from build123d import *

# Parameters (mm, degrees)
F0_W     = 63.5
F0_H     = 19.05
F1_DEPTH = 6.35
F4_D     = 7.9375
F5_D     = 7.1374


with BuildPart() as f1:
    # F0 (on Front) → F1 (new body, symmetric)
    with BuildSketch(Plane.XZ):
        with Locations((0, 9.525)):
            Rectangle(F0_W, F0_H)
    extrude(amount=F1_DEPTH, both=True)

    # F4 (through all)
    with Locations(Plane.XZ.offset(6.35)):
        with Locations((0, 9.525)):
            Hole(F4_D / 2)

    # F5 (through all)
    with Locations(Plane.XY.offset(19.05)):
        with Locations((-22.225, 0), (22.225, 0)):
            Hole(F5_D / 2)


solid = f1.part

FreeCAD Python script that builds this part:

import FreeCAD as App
import Part
import Sketcher

V = App.Vector
Q = App.Units.Quantity

doc = App.newDocument("Part")
body = doc.addObject("PartDesign::Body", "Body")

sketch1 = body.newObject("Sketcher::SketchObject", "Sketch")
sketch1.AttachmentSupport = (doc.getObject("XZ_Plane"), [""])
sketch1.MapMode = "FlatFace"
sketch1.addGeometry([
    Part.LineSegment(V(-32, 19, 0), V(-32, 0, 0)),
    Part.LineSegment(V(-32, 0, 0), V(32, 0, 0)),
    Part.LineSegment(V(32, 0, 0), V(32, 19, 0)),
    Part.LineSegment(V(32, 19, 0), V(-32, 19, 0)),
], False)
sketch1.addConstraint([
    Sketcher.Constraint("Coincident", 0, 2, 1, 1),
    Sketcher.Constraint("Coincident", 1, 2, 2, 1),
    Sketcher.Constraint("Coincident", 2, 2, 3, 1),
    Sketcher.Constraint("Coincident", 3, 2, 0, 1),
    Sketcher.Constraint("Vertical", 0),
    Sketcher.Constraint("Horizontal", 1),
    Sketcher.Constraint("Vertical", 2),
    Sketcher.Constraint("Horizontal", 3),
    Sketcher.Constraint("Symmetric", 0, 2, 1, 2, -1, 1),
    Sketcher.Constraint("DistanceX", 1, 1, 1, 2, Q("2.5 in")),
    Sketcher.Constraint("DistanceY", 0, 2, 0, 1, Q("0.75 in")),
])
pad1 = body.newObject("PartDesign::Pad", "Pad")
pad1.Profile = sketch1
pad1.Length = Q("0.5 in")
pad1.Midplane = True

sketch2 = body.newObject("Sketcher::SketchObject", "Sketch001")
sketch2.AttachmentSupport = (doc.getObject("XZ_Plane"), [""])
sketch2.MapMode = "FlatFace"
sketch2.AttachmentOffset = App.Placement(V(0, 0, 0.25 * 25.4), App.Rotation())
sketch2.addGeometry(Part.Circle(V(0, 9.5, 0), V(0, 0, 1), 4), False)
sketch2.addConstraint([
    Sketcher.Constraint("PointOnObject", 0, 3, -2),
    Sketcher.Constraint("Diameter", 0, Q("0.3125 in")),
    Sketcher.Constraint("DistanceY", -1, 1, 0, 3, Q("0.375 in")),
])
doc.recompute()
hole = body.newObject("PartDesign::Hole", "Hole")
hole.Profile = sketch2
hole.ThreadType = "None"
hole.Diameter = Q("0.3125 in")
hole.DepthType = "ThroughAll"

sketch3 = body.newObject("Sketcher::SketchObject", "Sketch002")
sketch3.AttachmentSupport = (doc.getObject("XY_Plane"), [""])
sketch3.MapMode = "FlatFace"
sketch3.AttachmentOffset = App.Placement(V(0, 0, 0.75 * 25.4), App.Rotation())
sketch3.addGeometry([
    Part.Circle(V(-22.2, 0, 0), V(0, 0, 1), 3.6),
    Part.Circle(V(22.2, 0, 0), V(0, 0, 1), 3.6),
], False)
sketch3.addConstraint([
    Sketcher.Constraint("Equal", 0, 1),
    Sketcher.Constraint("Symmetric", 0, 3, 1, 3, -1, 1),
    Sketcher.Constraint("PointOnObject", 0, 3, -1),
    Sketcher.Constraint("Diameter", 0, Q("0.281 in")),
    Sketcher.Constraint("DistanceX", 0, 3, 1, 3, Q("1.75 in")),
])
doc.recompute()
hole2 = body.newObject("PartDesign::Hole", "Hole001")
hole2.Profile = sketch3
hole2.ThreadType = "None"
hole2.Diameter = Q("0.281 in")
hole2.DepthType = "ThroughAll"

doc.recompute()
